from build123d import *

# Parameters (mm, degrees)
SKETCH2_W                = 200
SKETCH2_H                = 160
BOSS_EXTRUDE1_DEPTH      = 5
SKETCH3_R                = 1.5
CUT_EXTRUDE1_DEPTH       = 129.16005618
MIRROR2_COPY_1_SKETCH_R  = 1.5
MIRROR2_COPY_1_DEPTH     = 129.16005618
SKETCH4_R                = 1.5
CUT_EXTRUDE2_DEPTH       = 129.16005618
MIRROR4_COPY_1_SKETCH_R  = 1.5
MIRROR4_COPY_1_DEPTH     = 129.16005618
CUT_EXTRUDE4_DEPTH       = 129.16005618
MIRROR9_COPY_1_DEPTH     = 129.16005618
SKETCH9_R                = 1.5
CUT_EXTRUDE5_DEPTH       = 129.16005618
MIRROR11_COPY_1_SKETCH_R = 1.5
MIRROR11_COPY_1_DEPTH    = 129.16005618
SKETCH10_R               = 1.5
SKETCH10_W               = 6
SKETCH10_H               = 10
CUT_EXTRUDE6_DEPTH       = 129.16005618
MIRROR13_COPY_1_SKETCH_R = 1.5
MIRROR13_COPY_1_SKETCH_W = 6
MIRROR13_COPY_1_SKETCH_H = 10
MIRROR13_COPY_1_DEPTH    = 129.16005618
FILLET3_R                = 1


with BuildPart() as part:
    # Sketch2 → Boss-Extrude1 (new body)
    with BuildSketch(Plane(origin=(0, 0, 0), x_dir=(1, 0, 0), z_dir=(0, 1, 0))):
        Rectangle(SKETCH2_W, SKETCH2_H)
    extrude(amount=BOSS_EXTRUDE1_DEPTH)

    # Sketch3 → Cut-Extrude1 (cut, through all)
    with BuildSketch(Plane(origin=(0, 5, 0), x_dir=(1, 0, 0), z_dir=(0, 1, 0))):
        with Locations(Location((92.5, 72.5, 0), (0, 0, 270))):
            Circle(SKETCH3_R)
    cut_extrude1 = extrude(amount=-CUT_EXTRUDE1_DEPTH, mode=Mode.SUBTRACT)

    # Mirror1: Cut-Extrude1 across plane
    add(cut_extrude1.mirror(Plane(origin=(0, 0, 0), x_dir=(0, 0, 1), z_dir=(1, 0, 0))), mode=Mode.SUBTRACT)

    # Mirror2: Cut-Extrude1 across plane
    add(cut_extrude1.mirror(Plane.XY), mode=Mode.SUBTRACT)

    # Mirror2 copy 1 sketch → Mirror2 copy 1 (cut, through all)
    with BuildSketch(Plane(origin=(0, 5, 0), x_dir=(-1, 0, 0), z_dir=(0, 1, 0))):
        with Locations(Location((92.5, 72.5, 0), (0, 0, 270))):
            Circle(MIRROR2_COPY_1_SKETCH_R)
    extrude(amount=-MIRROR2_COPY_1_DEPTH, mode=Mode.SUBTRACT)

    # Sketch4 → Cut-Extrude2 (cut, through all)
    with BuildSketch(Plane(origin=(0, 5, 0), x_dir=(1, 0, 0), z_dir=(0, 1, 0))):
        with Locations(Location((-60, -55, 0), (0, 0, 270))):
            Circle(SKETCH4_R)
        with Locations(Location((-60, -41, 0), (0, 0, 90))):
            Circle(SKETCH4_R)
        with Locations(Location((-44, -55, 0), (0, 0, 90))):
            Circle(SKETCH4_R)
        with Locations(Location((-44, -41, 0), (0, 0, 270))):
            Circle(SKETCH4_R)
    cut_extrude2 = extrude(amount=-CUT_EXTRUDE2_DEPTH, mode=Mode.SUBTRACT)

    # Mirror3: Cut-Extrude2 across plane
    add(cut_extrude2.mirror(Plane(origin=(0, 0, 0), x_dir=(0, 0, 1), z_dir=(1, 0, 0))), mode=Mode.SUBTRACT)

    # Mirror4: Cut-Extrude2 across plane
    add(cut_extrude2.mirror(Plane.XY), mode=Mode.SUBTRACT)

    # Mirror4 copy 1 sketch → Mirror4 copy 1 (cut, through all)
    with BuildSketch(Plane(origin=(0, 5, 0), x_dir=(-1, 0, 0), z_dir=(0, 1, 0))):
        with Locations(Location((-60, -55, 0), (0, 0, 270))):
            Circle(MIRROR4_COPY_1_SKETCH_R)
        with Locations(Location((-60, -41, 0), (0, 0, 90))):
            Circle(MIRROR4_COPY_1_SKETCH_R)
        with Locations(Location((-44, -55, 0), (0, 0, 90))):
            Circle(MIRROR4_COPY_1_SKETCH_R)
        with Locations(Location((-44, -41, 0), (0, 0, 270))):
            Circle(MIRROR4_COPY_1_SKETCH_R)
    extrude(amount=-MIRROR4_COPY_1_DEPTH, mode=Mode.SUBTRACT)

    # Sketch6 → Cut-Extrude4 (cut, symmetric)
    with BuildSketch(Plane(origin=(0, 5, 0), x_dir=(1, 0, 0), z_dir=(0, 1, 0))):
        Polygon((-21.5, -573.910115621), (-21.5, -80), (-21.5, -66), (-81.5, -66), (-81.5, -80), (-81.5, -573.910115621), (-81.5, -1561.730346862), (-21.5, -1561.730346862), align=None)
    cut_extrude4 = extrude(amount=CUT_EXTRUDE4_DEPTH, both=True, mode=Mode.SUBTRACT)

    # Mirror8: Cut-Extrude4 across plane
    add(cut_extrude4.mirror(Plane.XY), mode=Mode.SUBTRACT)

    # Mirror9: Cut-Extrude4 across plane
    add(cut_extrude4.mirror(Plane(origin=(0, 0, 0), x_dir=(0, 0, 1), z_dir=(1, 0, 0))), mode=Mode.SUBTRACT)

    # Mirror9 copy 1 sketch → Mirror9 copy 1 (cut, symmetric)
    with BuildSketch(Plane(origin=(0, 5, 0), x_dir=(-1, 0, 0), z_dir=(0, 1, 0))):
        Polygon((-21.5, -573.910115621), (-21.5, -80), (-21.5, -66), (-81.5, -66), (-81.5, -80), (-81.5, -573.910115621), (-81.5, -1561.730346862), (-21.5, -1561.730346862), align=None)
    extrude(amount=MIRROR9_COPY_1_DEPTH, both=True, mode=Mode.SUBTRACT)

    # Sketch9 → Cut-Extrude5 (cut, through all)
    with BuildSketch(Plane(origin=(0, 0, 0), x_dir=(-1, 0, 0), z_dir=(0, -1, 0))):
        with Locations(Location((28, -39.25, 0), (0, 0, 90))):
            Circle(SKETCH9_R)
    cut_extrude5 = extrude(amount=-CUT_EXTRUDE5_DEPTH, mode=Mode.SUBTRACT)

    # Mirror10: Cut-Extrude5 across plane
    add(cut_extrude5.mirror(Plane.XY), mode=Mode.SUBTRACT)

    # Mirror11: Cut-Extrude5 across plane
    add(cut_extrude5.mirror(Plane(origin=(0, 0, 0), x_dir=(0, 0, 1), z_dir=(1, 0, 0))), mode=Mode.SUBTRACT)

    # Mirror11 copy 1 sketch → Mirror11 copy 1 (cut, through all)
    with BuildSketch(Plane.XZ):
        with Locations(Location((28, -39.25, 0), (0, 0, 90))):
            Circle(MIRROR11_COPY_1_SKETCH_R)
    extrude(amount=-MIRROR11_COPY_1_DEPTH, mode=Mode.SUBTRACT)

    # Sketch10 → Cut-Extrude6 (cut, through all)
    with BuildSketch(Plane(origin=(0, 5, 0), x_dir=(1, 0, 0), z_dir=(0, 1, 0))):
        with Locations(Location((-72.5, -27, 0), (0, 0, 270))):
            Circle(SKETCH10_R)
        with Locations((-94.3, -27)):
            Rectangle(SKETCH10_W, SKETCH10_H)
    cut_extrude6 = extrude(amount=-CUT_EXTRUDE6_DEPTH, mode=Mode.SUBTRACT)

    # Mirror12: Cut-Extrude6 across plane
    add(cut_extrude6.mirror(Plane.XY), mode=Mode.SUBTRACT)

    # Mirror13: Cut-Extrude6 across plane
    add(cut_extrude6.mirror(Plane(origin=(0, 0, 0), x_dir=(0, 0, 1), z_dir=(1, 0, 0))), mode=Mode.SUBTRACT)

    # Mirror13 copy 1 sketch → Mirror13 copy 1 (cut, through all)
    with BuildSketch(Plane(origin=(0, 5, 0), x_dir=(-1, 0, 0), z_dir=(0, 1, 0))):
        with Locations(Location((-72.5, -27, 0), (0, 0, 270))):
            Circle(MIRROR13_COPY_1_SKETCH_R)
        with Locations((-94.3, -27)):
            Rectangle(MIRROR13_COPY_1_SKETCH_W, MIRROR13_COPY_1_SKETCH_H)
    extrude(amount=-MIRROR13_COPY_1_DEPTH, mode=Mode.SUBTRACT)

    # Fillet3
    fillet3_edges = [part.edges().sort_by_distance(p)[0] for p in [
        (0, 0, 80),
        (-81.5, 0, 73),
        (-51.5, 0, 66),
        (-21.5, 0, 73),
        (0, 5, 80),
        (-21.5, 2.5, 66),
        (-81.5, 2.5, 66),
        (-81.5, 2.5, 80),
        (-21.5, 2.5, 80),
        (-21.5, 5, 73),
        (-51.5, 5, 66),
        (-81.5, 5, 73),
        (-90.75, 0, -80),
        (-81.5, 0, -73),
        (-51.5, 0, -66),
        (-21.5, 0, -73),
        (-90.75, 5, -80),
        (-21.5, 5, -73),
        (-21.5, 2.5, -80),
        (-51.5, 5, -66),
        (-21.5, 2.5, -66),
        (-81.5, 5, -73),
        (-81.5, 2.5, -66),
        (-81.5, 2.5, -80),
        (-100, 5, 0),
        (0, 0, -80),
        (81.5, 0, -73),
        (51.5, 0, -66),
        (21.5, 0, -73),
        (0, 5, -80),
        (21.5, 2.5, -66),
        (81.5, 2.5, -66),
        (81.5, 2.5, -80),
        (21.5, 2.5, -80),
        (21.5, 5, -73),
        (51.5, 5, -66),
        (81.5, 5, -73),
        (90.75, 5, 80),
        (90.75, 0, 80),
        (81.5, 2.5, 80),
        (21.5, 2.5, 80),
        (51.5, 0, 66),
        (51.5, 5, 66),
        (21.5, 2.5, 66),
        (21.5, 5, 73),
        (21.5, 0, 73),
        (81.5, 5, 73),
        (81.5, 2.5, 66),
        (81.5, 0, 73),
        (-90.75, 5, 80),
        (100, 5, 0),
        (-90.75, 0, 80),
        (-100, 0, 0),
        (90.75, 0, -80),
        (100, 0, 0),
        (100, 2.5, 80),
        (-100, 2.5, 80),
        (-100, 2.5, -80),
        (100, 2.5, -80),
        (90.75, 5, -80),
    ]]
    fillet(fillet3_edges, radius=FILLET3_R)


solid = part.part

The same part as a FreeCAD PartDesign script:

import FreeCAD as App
import Part
import Sketcher
Q = App.Units.Quantity


def edges_at(feature, points):
    """Names of the edges that pass closest to the given points."""
    edges = feature.Shape.Edges
    near = lambda p: min(range(len(edges)), key=lambda i: edges[i].distToShape(Part.Vertex(*p))[0])
    return sorted({f"Edge{near(p) + 1}" for p in points})

doc = App.newDocument("Part")
body = doc.addObject("PartDesign::Body", "Body")

# Sketch on XZ plane
sketch1 = body.newObject("Sketcher::SketchObject", "Sketch")
sketch1.AttachmentSupport = (doc.getObject("XZ_Plane"), [""])
sketch1.MapMode = "FlatFace"
sketch1.addGeometry([
    Part.LineSegment(App.Vector(-100, -80, 0), App.Vector(-100, 80, 0)),
    Part.LineSegment(App.Vector(-100, 80, 0), App.Vector(100, 80, 0)),
    Part.LineSegment(App.Vector(100, 80, 0), App.Vector(100, -80, 0)),
    Part.LineSegment(App.Vector(100, -80, 0), App.Vector(-100, -80, 0)),
], False)
sketch1.addConstraint([
    Sketcher.Constraint("Coincident", 0, 2, 1, 1),
    Sketcher.Constraint("Coincident", 1, 2, 2, 1),
    Sketcher.Constraint("Coincident", 2, 2, 3, 1),
    Sketcher.Constraint("Coincident", 3, 2, 0, 1),
    Sketcher.Constraint("Vertical", 0),
    Sketcher.Constraint("Horizontal", 1),
    Sketcher.Constraint("Vertical", 2),
    Sketcher.Constraint("Horizontal", 3),
    Sketcher.Constraint("Symmetric", 0, 2, 2, 2, -1, 1),
    Sketcher.Constraint("DistanceX", 1, 1, 1, 2, Q("200 mm")),
    Sketcher.Constraint("DistanceY", 0, 1, 0, 2, Q("160 mm")),
])
pad1 = body.newObject("PartDesign::Pad", "Pad")
pad1.Profile = sketch1
pad1.Length = 5
pad1.Reversed = True

# Sketch on XZ plane
sketch2 = body.newObject("Sketcher::SketchObject", "Sketch001")
sketch2.AttachmentSupport = (doc.getObject("XZ_Plane"), [""])
sketch2.MapMode = "FlatFace"
sketch2.AttachmentOffset = App.Placement(App.Vector(0, 0, -5), App.Rotation())
sketch2.addGeometry(Part.Circle(App.Vector(92.5, -72.5, 0), App.Vector(0, 0, 1), 1.5), False)
sketch2.addConstraint([
    Sketcher.Constraint("Diameter", 0, Q("3 mm")),
    Sketcher.Constraint("DistanceX", -1, 1, 0, 3, Q("92.5 mm")),
    Sketcher.Constraint("DistanceY", 0, 3, -1, 1, Q("72.5 mm")),
])
pocket1 = body.newObject("PartDesign::Pocket", "Pocket")
pocket1.Profile = sketch2
pocket1.Type = "ThroughAll"
pocket1.Reversed = True
doc.recompute()

mirrored = body.newObject("PartDesign::Mirrored", "Mirrored")
mirrored.Originals = [pocket1]
mirrored.MirrorPlane = (doc.getObject("YZ_Plane"), [""])
body.Tip = mirrored
doc.recompute()

mirrored2 = body.newObject("PartDesign::Mirrored", "Mirrored001")
mirrored2.Originals = [pocket1]
mirrored2.MirrorPlane = (doc.getObject("XY_Plane"), [""])
body.Tip = mirrored2

# Sketch on XZ plane
sketch3 = body.newObject("Sketcher::SketchObject", "Sketch002")
sketch3.AttachmentSupport = (doc.getObject("XZ_Plane"), [""])
sketch3.MapMode = "FlatFace"
sketch3.AttachmentOffset = App.Placement(App.Vector(0, 0, -5), App.Rotation())
sketch3.addGeometry(Part.Circle(App.Vector(-92.5, 72.5, 0), App.Vector(0, 0, 1), 1.5), False)
sketch3.addConstraint([
    Sketcher.Constraint("Diameter", 0, Q("3 mm")),
    Sketcher.Constraint("DistanceX", 0, 3, -1, 1, Q("92.5 mm")),
    Sketcher.Constraint("DistanceY", -1, 1, 0, 3, Q("72.5 mm")),
])
pocket2 = body.newObject("PartDesign::Pocket", "Pocket001")
pocket2.Profile = sketch3
pocket2.Type = "ThroughAll"
pocket2.Reversed = True

# Sketch on XZ plane
sketch4 = body.newObject("Sketcher::SketchObject", "Sketch003")
sketch4.AttachmentSupport = (doc.getObject("XZ_Plane"), [""])
sketch4.MapMode = "FlatFace"
sketch4.AttachmentOffset = App.Placement(App.Vector(0, 0, -5), App.Rotation())
sketch4.addGeometry([
    Part.Circle(App.Vector(-60, 55, 0), App.Vector(0, 0, 1), 1.5),
    Part.Circle(App.Vector(-60, 41, 0), App.Vector(0, 0, 1), 1.5),
    Part.Circle(App.Vector(-44, 55, 0), App.Vector(0, 0, 1), 1.5),
    Part.Circle(App.Vector(-44, 41, 0), App.Vector(0, 0, 1), 1.5),
], False)
sketch4.addConstraint([
    Sketcher.Constraint("Equal", 0, 1),
    Sketcher.Constraint("Equal", 1, 2),
    Sketcher.Constraint("Equal", 2, 3),
    Sketcher.Constraint("Horizontal", 0, 3, 2, 3),
    Sketcher.Constraint("Horizontal", 1, 3, 3, 3),
    Sketcher.Constraint("Vertical", 0, 3, 1, 3),
    Sketcher.Constraint("Vertical", 2, 3, 3, 3),
    Sketcher.Constraint("Diameter", 0, Q("3 mm")),
    Sketcher.Constraint("DistanceX", 0, 3, -1, 1, Q("60 mm")),
    Sketcher.Constraint("DistanceY", -1, 1, 0, 3, Q("55 mm")),
    Sketcher.Constraint("DistanceY", -1, 1, 1, 3, Q("41 mm")),
    Sketcher.Constraint("DistanceX", 2, 3, -1, 1, Q("44 mm")),
])
pocket3 = body.newObject("PartDesign::Pocket", "Pocket002")
pocket3.Profile = sketch4
pocket3.Type = "ThroughAll"
pocket3.Reversed = True
doc.recompute()

mirrored3 = body.newObject("PartDesign::Mirrored", "Mirrored002")
mirrored3.Originals = [pocket3]
mirrored3.MirrorPlane = (doc.getObject("YZ_Plane"), [""])
body.Tip = mirrored3
doc.recompute()

mirrored4 = body.newObject("PartDesign::Mirrored", "Mirrored003")
mirrored4.Originals = [pocket3]
mirrored4.MirrorPlane = (doc.getObject("XY_Plane"), [""])
body.Tip = mirrored4

# Sketch on XZ plane
sketch5 = body.newObject("Sketcher::SketchObject", "Sketch004")
sketch5.AttachmentSupport = (doc.getObject("XZ_Plane"), [""])
sketch5.MapMode = "FlatFace"
sketch5.AttachmentOffset = App.Placement(App.Vector(0, 0, -5), App.Rotation())
sketch5.addGeometry([
    Part.Circle(App.Vector(60, -55, 0), App.Vector(0, 0, 1), 1.5),
    Part.Circle(App.Vector(60, -41, 0), App.Vector(0, 0, 1), 1.5),
    Part.Circle(App.Vector(44, -55, 0), App.Vector(0, 0, 1), 1.5),
    Part.Circle(App.Vector(44, -41, 0), App.Vector(0, 0, 1), 1.5),
], False)
sketch5.addConstraint([
    Sketcher.Constraint("Equal", 0, 1),
    Sketcher.Constraint("Equal", 1, 2),
    Sketcher.Constraint("Equal", 2, 3),
    Sketcher.Constraint("Horizontal", 0, 3, 2, 3),
    Sketcher.Constraint("Horizontal", 1, 3, 3, 3),
    Sketcher.Constraint("Vertical", 0, 3, 1, 3),
    Sketcher.Constraint("Vertical", 2, 3, 3, 3),
    Sketcher.Constraint("Diameter", 0, Q("3 mm")),
    Sketcher.Constraint("DistanceX", -1, 1, 0, 3, Q("60 mm")),
    Sketcher.Constraint("DistanceY", 0, 3, -1, 1, Q("55 mm")),
    Sketcher.Constraint("DistanceY", 1, 3, -1, 1, Q("41 mm")),
    Sketcher.Constraint("DistanceX", -1, 1, 2, 3, Q("44 mm")),
])
pocket4 = body.newObject("PartDesign::Pocket", "Pocket003")
pocket4.Profile = sketch5
pocket4.Type = "ThroughAll"
pocket4.Reversed = True

# Sketch on XZ plane
sketch6 = body.newObject("Sketcher::SketchObject", "Sketch005")
sketch6.AttachmentSupport = (doc.getObject("XZ_Plane"), [""])
sketch6.MapMode = "FlatFace"
sketch6.AttachmentOffset = App.Placement(App.Vector(0, 0, -5), App.Rotation())
sketch6.addGeometry([
    Part.LineSegment(App.Vector(-22, 66, 0), App.Vector(-82, 66, 0)),
    Part.LineSegment(App.Vector(-82, 66, 0), App.Vector(-82, 1562, 0)),
    Part.LineSegment(App.Vector(-82, 1562, 0), App.Vector(-22, 1562, 0)),
    Part.LineSegment(App.Vector(-22, 1562, 0), App.Vector(-22, 66, 0)),
], False)
sketch6.addConstraint([
    Sketcher.Constraint("Coincident", 0, 2, 1, 1),
    Sketcher.Constraint("Coincident", 1, 2, 2, 1),
    Sketcher.Constraint("Coincident", 2, 2, 3, 1),
    Sketcher.Constraint("Coincident", 3, 2, 0, 1),
    Sketcher.Constraint("Horizontal", 0),
    Sketcher.Constraint("Vertical", 1),
    Sketcher.Constraint("Horizontal", 2),
    Sketcher.Constraint("Vertical", 3),
    Sketcher.Constraint("DistanceX", 0, 2, 0, 1, Q("60 mm")),
    Sketcher.Constraint("DistanceY", -1, 1, 0, 2, Q("66 mm")),
    Sketcher.Constraint("DistanceX", 0, 2, -1, 1, Q("81.5 mm")),
    Sketcher.Constraint("DistanceY", 1, 1, 1, 2, Q("1495.730347 mm")),
])
pocket5 = body.newObject("PartDesign::Pocket", "Pocket004")
pocket5.Profile = sketch6
pocket5.Length = 258.320112
pocket5.Midplane = True
doc.recompute()

mirrored5 = body.newObject("PartDesign::Mirrored", "Mirrored004")
mirrored5.Originals = [pocket5]
mirrored5.MirrorPlane = (doc.getObject("XY_Plane"), [""])
body.Tip = mirrored5
doc.recompute()

mirrored6 = body.newObject("PartDesign::Mirrored", "Mirrored005")
mirrored6.Originals = [pocket5]
mirrored6.MirrorPlane = (doc.getObject("YZ_Plane"), [""])
body.Tip = mirrored6

# Sketch on XZ plane
sketch7 = body.newObject("Sketcher::SketchObject", "Sketch006")
sketch7.AttachmentSupport = (doc.getObject("XZ_Plane"), [""])
sketch7.MapMode = "FlatFace"
sketch7.AttachmentOffset = App.Placement(App.Vector(0, 0, -5), App.Rotation())
sketch7.addGeometry([
    Part.LineSegment(App.Vector(22, -66, 0), App.Vector(82, -66, 0)),
    Part.LineSegment(App.Vector(82, -66, 0), App.Vector(82, -1562, 0)),
    Part.LineSegment(App.Vector(82, -1562, 0), App.Vector(22, -1562, 0)),
    Part.LineSegment(App.Vector(22, -1562, 0), App.Vector(22, -66, 0)),
], False)
sketch7.addConstraint([
    Sketcher.Constraint("Coincident", 0, 2, 1, 1),
    Sketcher.Constraint("Coincident", 1, 2, 2, 1),
    Sketcher.Constraint("Coincident", 2, 2, 3, 1),
    Sketcher.Constraint("Coincident", 3, 2, 0, 1),
    Sketcher.Constraint("Horizontal", 0),
    Sketcher.Constraint("Vertical", 1),
    Sketcher.Constraint("Horizontal", 2),
    Sketcher.Constraint("Vertical", 3),
    Sketcher.Constraint("DistanceX", 0, 1, 0, 2, Q("60 mm")),
    Sketcher.Constraint("DistanceY", 0, 2, -1, 1, Q("66 mm")),
    Sketcher.Constraint("DistanceX", -1, 1, 0, 2, Q("81.5 mm")),
    Sketcher.Constraint("DistanceY", 1, 2, 1, 1, Q("1495.730347 mm")),
])
pocket6 = body.newObject("PartDesign::Pocket", "Pocket005")
pocket6.Profile = sketch7
pocket6.Length = 258.320112
pocket6.Midplane = True

# Sketch on XZ plane
sketch8 = body.newObject("Sketcher::SketchObject", "Sketch007")
sketch8.AttachmentSupport = (doc.getObject("XZ_Plane"), [""])
sketch8.MapMode = "FlatFace"
sketch8.addGeometry(Part.Circle(App.Vector(-28, 39.2, 0), App.Vector(0, 0, 1), 1.5), False)
sketch8.addConstraint([
    Sketcher.Constraint("Diameter", 0, Q("3 mm")),
    Sketcher.Constraint("DistanceX", 0, 3, -1, 1, Q("28 mm")),
    Sketcher.Constraint("DistanceY", -1, 1, 0, 3, Q("39.25 mm")),
])
pocket7 = body.newObject("PartDesign::Pocket", "Pocket006")
pocket7.Profile = sketch8
pocket7.Type = "ThroughAll"
doc.recompute()

mirrored7 = body.newObject("PartDesign::Mirrored", "Mirrored006")
mirrored7.Originals = [pocket7]
mirrored7.MirrorPlane = (doc.getObject("XY_Plane"), [""])
body.Tip = mirrored7
doc.recompute()

mirrored8 = body.newObject("PartDesign::Mirrored", "Mirrored007")
mirrored8.Originals = [pocket7]
mirrored8.MirrorPlane = (doc.getObject("YZ_Plane"), [""])
body.Tip = mirrored8

# Sketch on XZ plane
sketch9 = body.newObject("Sketcher::SketchObject", "Sketch008")
sketch9.AttachmentSupport = (doc.getObject("XZ_Plane"), [""])
sketch9.MapMode = "FlatFace"
sketch9.addGeometry(Part.Circle(App.Vector(28, -39.2, 0), App.Vector(0, 0, 1), 1.5), False)
sketch9.addConstraint([
    Sketcher.Constraint("Diameter", 0, Q("3 mm")),
    Sketcher.Constraint("DistanceX", -1, 1, 0, 3, Q("28 mm")),
    Sketcher.Constraint("DistanceY", 0, 3, -1, 1, Q("39.25 mm")),
])
pocket8 = body.newObject("PartDesign::Pocket", "Pocket007")
pocket8.Profile = sketch9
pocket8.Type = "ThroughAll"

# Sketch on XZ plane
sketch10 = body.newObject("Sketcher::SketchObject", "Sketch009")
sketch10.AttachmentSupport = (doc.getObject("XZ_Plane"), [""])
sketch10.MapMode = "FlatFace"
sketch10.AttachmentOffset = App.Placement(App.Vector(0, 0, -5), App.Rotation())
sketch10.addGeometry([
    Part.Circle(App.Vector(-72.5, 27, 0), App.Vector(0, 0, 1), 1.5),  # 0
    Part.LineSegment(App.Vector(-97.3, 22, 0), App.Vector(-97.3, 32, 0)),  # 1
    Part.LineSegment(App.Vector(-97.3, 32, 0), App.Vector(-91.3, 32, 0)),  # 2
    Part.LineSegment(App.Vector(-91.3, 32, 0), App.Vector(-91.3, 22, 0)),  # 3
    Part.LineSegment(App.Vector(-91.3, 22, 0), App.Vector(-97.3, 22, 0)),  # 4
], False)
sketch10.addConstraint([
    Sketcher.Constraint("Coincident", 1, 2, 2, 1),
    Sketcher.Constraint("Coincident", 2, 2, 3, 1),
    Sketcher.Constraint("Coincident", 3, 2, 4, 1),
    Sketcher.Constraint("Coincident", 4, 2, 1, 1),
    Sketcher.Constraint("Vertical", 1),
    Sketcher.Constraint("Horizontal", 2),
    Sketcher.Constraint("Vertical", 3),
    Sketcher.Constraint("Horizontal", 4),
    Sketcher.Constraint("Diameter", 0, Q("3 mm")),
    Sketcher.Constraint("DistanceX", 2, 1, 2, 2, Q("6 mm")),
    Sketcher.Constraint("DistanceY", 1, 1, 1, 2, Q("10 mm")),
    Sketcher.Constraint("DistanceY", -1, 1, 0, 3, Q("27 mm")),
    Sketcher.Constraint("DistanceY", -1, 1, 1, 2, Q("32 mm")),
    Sketcher.Constraint("DistanceX", 0, 3, -1, 1, Q("72.5 mm")),
    Sketcher.Constraint("DistanceX", 1, 2, -1, 1, Q("97.3 mm")),
])
pocket9 = body.newObject("PartDesign::Pocket", "Pocket008")
pocket9.Profile = sketch10
pocket9.Type = "ThroughAll"
pocket9.Reversed = True
doc.recompute()

mirrored9 = body.newObject("PartDesign::Mirrored", "Mirrored008")
mirrored9.Originals = [pocket9]
mirrored9.MirrorPlane = (doc.getObject("XY_Plane"), [""])
body.Tip = mirrored9
doc.recompute()

mirrored10 = body.newObject("PartDesign::Mirrored", "Mirrored009")
mirrored10.Originals = [pocket9]
mirrored10.MirrorPlane = (doc.getObject("YZ_Plane"), [""])
body.Tip = mirrored10

# Sketch on XZ plane
sketch11 = body.newObject("Sketcher::SketchObject", "Sketch010")
sketch11.AttachmentSupport = (doc.getObject("XZ_Plane"), [""])
sketch11.MapMode = "FlatFace"
sketch11.AttachmentOffset = App.Placement(App.Vector(0, 0, -5), App.Rotation())
sketch11.addGeometry([
    Part.Circle(App.Vector(72.5, -27, 0), App.Vector(0, 0, 1), 1.5),  # 0
    Part.LineSegment(App.Vector(97.3, -22, 0), App.Vector(97.3, -32, 0)),  # 1
    Part.LineSegment(App.Vector(97.3, -32, 0), App.Vector(91.3, -32, 0)),  # 2
    Part.LineSegment(App.Vector(91.3, -32, 0), App.Vector(91.3, -22, 0)),  # 3
    Part.LineSegment(App.Vector(91.3, -22, 0), App.Vector(97.3, -22, 0)),  # 4
], False)
sketch11.addConstraint([
    Sketcher.Constraint("Coincident", 1, 2, 2, 1),
    Sketcher.Constraint("Coincident", 2, 2, 3, 1),
    Sketcher.Constraint("Coincident", 3, 2, 4, 1),
    Sketcher.Constraint("Coincident", 4, 2, 1, 1),
    Sketcher.Constraint("Vertical", 1),
    Sketcher.Constraint("Horizontal", 2),
    Sketcher.Constraint("Vertical", 3),
    Sketcher.Constraint("Horizontal", 4),
    Sketcher.Constraint("Diameter", 0, Q("3 mm")),
    Sketcher.Constraint("DistanceX", 2, 2, 2, 1, Q("6 mm")),
    Sketcher.Constraint("DistanceY", 1, 2, 1, 1, Q("10 mm")),
    Sketcher.Constraint("DistanceY", 0, 3, -1, 1, Q("27 mm")),
    Sketcher.Constraint("DistanceY", 1, 2, -1, 1, Q("32 mm")),
    Sketcher.Constraint("DistanceX", -1, 1, 0, 3, Q("72.5 mm")),
    Sketcher.Constraint("DistanceX", -1, 1, 1, 2, Q("97.3 mm")),
])
pocket10 = body.newObject("PartDesign::Pocket", "Pocket009")
pocket10.Profile = sketch11
pocket10.Type = "ThroughAll"
pocket10.Reversed = True
doc.recompute()

fillet = body.newObject("PartDesign::Fillet", "Fillet")
fillet.Base = (pocket10, edges_at(pocket10, [
    (0, 0, 80),
    (-81.5, 0, 73),
    (-51.5, 0, 66),
    (-21.5, 0, 73),
    (0, 5, 80),
    (-21.5, 2.5, 66),
    (-81.5, 2.5, 66),
    (-81.5, 2.5, 80),
    (-21.5, 2.5, 80),
    (-21.5, 5, 73),
    (-51.5, 5, 66),
    (-81.5, 5, 73),
    (-90.75, 0, -80),
    (-81.5, 0, -73),
    (-51.5, 0, -66),
    (-21.5, 0, -73),
    (-90.75, 5, -80),
    (-21.5, 5, -73),
    (-21.5, 2.5, -80),
    (-51.5, 5, -66),
    (-21.5, 2.5, -66),
    (-81.5, 5, -73),
    (-81.5, 2.5, -66),
    (-81.5, 2.5, -80),
    (-100, 5, 0),
    (0, 0, -80),
    (81.5, 0, -73),
    (51.5, 0, -66),
    (21.5, 0, -73),
    (0, 5, -80),
    (21.5, 2.5, -66),
    (81.5, 2.5, -66),
    (81.5, 2.5, -80),
    (21.5, 2.5, -80),
    (21.5, 5, -73),
    (51.5, 5, -66),
    (81.5, 5, -73),
    (90.75, 5, 80),
    (90.75, 0, 80),
    (81.5, 2.5, 80),
    (21.5, 2.5, 80),
    (51.5, 0, 66),
    (51.5, 5, 66),
    (21.5, 2.5, 66),
    (21.5, 5, 73),
    (21.5, 0, 73),
    (81.5, 5, 73),
    (81.5, 2.5, 66),
    (81.5, 0, 73),
    (-90.75, 5, 80),
    (100, 5, 0),
    (-90.75, 0, 80),
    (-100, 0, 0),
    (90.75, 0, -80),
    (100, 0, 0),
    (100, 2.5, 80),
    (-100, 2.5, 80),
    (-100, 2.5, -80),
    (100, 2.5, -80),
    (90.75, 5, -80),
]))
fillet.Radius = 1

doc.recompute()
